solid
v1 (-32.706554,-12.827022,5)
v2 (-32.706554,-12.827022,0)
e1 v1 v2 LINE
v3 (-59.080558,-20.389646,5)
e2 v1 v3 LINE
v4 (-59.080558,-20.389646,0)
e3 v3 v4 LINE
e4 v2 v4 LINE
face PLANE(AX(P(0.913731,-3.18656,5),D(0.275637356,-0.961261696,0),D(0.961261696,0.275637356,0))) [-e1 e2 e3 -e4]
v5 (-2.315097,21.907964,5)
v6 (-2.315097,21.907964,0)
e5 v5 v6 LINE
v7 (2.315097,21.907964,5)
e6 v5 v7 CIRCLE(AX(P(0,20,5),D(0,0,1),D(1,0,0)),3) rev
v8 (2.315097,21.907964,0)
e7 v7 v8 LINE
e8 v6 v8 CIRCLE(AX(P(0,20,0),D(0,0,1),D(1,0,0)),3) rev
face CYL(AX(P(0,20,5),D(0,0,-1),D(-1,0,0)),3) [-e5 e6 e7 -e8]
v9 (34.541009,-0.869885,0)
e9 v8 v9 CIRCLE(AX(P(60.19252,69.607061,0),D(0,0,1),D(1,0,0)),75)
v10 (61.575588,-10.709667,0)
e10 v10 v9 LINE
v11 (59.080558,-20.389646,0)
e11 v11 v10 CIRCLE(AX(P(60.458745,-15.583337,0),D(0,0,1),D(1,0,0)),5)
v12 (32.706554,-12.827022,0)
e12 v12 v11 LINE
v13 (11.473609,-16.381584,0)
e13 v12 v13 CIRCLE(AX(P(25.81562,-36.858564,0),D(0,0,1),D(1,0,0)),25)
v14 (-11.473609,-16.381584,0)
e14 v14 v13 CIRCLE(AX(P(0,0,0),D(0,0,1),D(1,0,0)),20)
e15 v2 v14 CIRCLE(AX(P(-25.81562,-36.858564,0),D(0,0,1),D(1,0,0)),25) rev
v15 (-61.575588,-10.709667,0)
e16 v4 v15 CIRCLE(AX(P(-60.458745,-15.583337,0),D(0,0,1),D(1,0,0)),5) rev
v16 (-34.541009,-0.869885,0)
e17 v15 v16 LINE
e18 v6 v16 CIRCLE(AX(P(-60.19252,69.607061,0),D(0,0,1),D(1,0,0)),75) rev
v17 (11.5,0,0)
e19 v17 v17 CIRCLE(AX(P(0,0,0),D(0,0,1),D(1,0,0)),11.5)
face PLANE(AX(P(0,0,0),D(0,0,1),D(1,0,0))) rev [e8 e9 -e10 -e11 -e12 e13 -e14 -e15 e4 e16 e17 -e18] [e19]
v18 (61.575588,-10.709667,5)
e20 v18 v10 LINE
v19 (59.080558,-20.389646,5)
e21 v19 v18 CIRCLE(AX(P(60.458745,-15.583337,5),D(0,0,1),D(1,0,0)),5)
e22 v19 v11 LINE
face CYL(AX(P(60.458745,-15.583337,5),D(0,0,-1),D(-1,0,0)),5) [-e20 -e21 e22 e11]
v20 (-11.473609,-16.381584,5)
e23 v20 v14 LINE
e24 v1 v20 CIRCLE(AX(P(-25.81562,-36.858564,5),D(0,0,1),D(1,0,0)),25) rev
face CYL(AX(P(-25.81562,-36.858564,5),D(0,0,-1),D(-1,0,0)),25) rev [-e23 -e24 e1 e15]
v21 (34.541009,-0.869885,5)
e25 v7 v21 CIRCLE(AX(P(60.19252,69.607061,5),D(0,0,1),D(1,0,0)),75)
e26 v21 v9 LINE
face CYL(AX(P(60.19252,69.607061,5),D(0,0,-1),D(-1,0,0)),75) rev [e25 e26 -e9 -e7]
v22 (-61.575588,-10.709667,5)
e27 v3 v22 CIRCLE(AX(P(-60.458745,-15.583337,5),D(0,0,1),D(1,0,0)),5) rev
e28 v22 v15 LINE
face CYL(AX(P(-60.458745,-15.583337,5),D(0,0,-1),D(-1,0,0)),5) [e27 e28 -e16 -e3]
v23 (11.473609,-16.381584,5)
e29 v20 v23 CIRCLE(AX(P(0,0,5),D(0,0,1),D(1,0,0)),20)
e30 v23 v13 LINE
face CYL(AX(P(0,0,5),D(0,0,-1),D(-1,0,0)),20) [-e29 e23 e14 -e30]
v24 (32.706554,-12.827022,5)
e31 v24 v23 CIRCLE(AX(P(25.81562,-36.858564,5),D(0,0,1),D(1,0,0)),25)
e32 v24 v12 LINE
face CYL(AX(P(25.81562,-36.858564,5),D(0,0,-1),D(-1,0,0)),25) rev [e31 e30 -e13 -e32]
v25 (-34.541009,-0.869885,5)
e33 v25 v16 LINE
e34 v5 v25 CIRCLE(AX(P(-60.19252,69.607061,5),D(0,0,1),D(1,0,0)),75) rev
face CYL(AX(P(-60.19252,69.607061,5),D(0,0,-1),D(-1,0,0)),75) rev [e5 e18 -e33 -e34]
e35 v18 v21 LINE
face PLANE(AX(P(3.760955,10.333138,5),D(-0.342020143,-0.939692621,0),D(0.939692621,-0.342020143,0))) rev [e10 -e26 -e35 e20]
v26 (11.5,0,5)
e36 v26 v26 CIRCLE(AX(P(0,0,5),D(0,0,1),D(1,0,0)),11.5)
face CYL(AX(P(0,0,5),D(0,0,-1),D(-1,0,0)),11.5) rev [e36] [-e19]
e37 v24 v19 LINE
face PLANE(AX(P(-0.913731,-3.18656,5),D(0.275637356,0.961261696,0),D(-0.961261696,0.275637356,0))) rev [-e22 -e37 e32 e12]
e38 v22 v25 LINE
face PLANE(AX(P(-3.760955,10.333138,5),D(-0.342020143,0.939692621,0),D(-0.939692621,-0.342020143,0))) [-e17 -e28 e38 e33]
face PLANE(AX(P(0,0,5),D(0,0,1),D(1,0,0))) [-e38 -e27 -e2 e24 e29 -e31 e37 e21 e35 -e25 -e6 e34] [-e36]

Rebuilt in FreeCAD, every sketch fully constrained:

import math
import FreeCAD as App
import Part
import Sketcher

V = App.Vector
Q = App.Units.Quantity

doc = App.newDocument("Part")
body = doc.addObject("PartDesign::Body", "Body")

sketch1 = doc.addObject("Sketcher::SketchObject", "Sketch")
body.addObject(sketch1)
sketch1.AttachmentSupport = (doc.XY_Plane, [""])
sketch1.MapMode = "FlatFace"
sketch1.addGeometry(Part.LineSegment(V(61.6, -10.7, 0), V(34.5, -0.9, 0)), False)
sketch1.addGeometry(Part.ArcOfCircle(Part.Circle(V(60.2, 69.6, 0), V(0, 0, 1), 75), math.radians(-141), math.radians(-110)), False)
sketch1.addGeometry(Part.ArcOfCircle(Part.Circle(V(0, 20, 0), V(0, 0, 1), 3), math.radians(39), math.radians(141)), False)
sketch1.addGeometry(Part.ArcOfCircle(Part.Circle(V(-60.2, 69.6, 0), V(0, 0, 1), 75), math.radians(-70), math.radians(-39)), False)
sketch1.addGeometry(Part.LineSegment(V(-34.5, -0.9, 0), V(-61.6, -10.7, 0)), False)
sketch1.addGeometry(Part.ArcOfCircle(Part.Circle(V(-60.5, -15.6, 0), V(0, 0, 1), 5), math.radians(103), math.radians(286)), False)
sketch1.addGeometry(Part.LineSegment(V(-59.1, -20.4, 0), V(-32.7, -12.8, 0)), False)
sketch1.addGeometry(Part.ArcOfCircle(Part.Circle(V(-25.8, -36.9, 0), V(0, 0, 1), 25), math.radians(55), math.radians(106)), False)
sketch1.addGeometry(Part.ArcOfCircle(Part.Circle(V(0, 0, 0), V(0, 0, 1), 20), math.radians(-125), math.radians(-55)), False)
sketch1.addGeometry(Part.ArcOfCircle(Part.Circle(V(25.8, -36.9, 0), V(0, 0, 1), 25), math.radians(74), math.radians(125)), False)
sketch1.addGeometry(Part.LineSegment(V(32.7, -12.8, 0), V(59.1, -20.4, 0)), False)
sketch1.addGeometry(Part.ArcOfCircle(Part.Circle(V(60.5, -15.6, 0), V(0, 0, 1), 5), math.radians(-106), math.radians(77)), False)
sketch1.addGeometry(Part.Circle(V(0, 0, 0), V(0, 0, 1), 11.5), False)
sketch1.addConstraint(Sketcher.Constraint("Tangent", 0, 2, 1, 2))
sketch1.addConstraint(Sketcher.Constraint("Tangent", 1, 1, 2, 1))
sketch1.addConstraint(Sketcher.Constraint("Tangent", 2, 2, 3, 2))
sketch1.addConstraint(Sketcher.Constraint("Tangent", 3, 1, 4, 1))
sketch1.addConstraint(Sketcher.Constraint("Coincident", 4, 2, 5, 1))
sketch1.addConstraint(Sketcher.Constraint("Tangent", 5, 2, 6, 1))
sketch1.addConstraint(Sketcher.Constraint("Tangent", 6, 2, 7, 2))
sketch1.addConstraint(Sketcher.Constraint("Tangent", 7, 1, 8, 1))
sketch1.addConstraint(Sketcher.Constraint("Tangent", 8, 2, 9, 2))
sketch1.addConstraint(Sketcher.Constraint("Tangent", 9, 1, 10, 1))
sketch1.addConstraint(Sketcher.Constraint("Tangent", 10, 2, 11, 1))
sketch1.addConstraint(Sketcher.Constraint("Coincident", 11, 2, 0, 1))
sketch1.addConstraint(Sketcher.Constraint("Coincident", 8, 3, -1, 1))
sketch1.addConstraint(Sketcher.Constraint("Coincident", 12, 3, -1, 1))
sketch1.addConstraint(Sketcher.Constraint("Equal", 1, 3))
sketch1.addConstraint(Sketcher.Constraint("Equal", 7, 9))
sketch1.addConstraint(Sketcher.Constraint("Equal", 5, 11))
sketch1.addConstraint(Sketcher.Constraint("Symmetric", 1, 3, 3, 3, -2))
sketch1.addConstraint(Sketcher.Constraint("Symmetric", 5, 3, 11, 3, -2))
sketch1.addConstraint(Sketcher.Constraint("Horizontal", 7, 3, 9, 3))
sketch1.addConstraint(Sketcher.Constraint("Horizontal", 0, 2, 3, 1))
sketch1.addConstraint(Sketcher.Constraint("Diameter", 12, 23.0))
sketch1.addConstraint(Sketcher.Constraint("Radius", 1, 75.0))
sketch1.addConstraint(Sketcher.Constraint("Radius", 2, 3.0))
sketch1.addConstraint(Sketcher.Constraint("Radius", 5, 5.0))
sketch1.addConstraint(Sketcher.Constraint("Radius", 7, 25.0))
sketch1.addConstraint(Sketcher.Constraint("Radius", 8, 20.0))
sketch1.addConstraint(Sketcher.Constraint("Angle", 0, Q("160 deg")))
sketch1.addConstraint(Sketcher.Constraint("Angle", 6, Q("16 deg")))
sketch1.addConstraint(Sketcher.Constraint("DistanceY", -1, 1, 2, 3, 20.0))
sketch1.addConstraint(Sketcher.Constraint("DistanceY", 5, 3, 3, 3, 85.190399))
sketch1.addConstraint(Sketcher.Constraint("DistanceX", 3, 3, 7, 3, 34.3769))
sketch1.addConstraint(Sketcher.Constraint("DistanceY", 7, 1, 3, 1, 15.511699))
pad1 = doc.addObject("PartDesign::Pad", "Pad")
body.addObject(pad1)
pad1.Profile = sketch1
pad1.Length = 5

doc.recompute()
